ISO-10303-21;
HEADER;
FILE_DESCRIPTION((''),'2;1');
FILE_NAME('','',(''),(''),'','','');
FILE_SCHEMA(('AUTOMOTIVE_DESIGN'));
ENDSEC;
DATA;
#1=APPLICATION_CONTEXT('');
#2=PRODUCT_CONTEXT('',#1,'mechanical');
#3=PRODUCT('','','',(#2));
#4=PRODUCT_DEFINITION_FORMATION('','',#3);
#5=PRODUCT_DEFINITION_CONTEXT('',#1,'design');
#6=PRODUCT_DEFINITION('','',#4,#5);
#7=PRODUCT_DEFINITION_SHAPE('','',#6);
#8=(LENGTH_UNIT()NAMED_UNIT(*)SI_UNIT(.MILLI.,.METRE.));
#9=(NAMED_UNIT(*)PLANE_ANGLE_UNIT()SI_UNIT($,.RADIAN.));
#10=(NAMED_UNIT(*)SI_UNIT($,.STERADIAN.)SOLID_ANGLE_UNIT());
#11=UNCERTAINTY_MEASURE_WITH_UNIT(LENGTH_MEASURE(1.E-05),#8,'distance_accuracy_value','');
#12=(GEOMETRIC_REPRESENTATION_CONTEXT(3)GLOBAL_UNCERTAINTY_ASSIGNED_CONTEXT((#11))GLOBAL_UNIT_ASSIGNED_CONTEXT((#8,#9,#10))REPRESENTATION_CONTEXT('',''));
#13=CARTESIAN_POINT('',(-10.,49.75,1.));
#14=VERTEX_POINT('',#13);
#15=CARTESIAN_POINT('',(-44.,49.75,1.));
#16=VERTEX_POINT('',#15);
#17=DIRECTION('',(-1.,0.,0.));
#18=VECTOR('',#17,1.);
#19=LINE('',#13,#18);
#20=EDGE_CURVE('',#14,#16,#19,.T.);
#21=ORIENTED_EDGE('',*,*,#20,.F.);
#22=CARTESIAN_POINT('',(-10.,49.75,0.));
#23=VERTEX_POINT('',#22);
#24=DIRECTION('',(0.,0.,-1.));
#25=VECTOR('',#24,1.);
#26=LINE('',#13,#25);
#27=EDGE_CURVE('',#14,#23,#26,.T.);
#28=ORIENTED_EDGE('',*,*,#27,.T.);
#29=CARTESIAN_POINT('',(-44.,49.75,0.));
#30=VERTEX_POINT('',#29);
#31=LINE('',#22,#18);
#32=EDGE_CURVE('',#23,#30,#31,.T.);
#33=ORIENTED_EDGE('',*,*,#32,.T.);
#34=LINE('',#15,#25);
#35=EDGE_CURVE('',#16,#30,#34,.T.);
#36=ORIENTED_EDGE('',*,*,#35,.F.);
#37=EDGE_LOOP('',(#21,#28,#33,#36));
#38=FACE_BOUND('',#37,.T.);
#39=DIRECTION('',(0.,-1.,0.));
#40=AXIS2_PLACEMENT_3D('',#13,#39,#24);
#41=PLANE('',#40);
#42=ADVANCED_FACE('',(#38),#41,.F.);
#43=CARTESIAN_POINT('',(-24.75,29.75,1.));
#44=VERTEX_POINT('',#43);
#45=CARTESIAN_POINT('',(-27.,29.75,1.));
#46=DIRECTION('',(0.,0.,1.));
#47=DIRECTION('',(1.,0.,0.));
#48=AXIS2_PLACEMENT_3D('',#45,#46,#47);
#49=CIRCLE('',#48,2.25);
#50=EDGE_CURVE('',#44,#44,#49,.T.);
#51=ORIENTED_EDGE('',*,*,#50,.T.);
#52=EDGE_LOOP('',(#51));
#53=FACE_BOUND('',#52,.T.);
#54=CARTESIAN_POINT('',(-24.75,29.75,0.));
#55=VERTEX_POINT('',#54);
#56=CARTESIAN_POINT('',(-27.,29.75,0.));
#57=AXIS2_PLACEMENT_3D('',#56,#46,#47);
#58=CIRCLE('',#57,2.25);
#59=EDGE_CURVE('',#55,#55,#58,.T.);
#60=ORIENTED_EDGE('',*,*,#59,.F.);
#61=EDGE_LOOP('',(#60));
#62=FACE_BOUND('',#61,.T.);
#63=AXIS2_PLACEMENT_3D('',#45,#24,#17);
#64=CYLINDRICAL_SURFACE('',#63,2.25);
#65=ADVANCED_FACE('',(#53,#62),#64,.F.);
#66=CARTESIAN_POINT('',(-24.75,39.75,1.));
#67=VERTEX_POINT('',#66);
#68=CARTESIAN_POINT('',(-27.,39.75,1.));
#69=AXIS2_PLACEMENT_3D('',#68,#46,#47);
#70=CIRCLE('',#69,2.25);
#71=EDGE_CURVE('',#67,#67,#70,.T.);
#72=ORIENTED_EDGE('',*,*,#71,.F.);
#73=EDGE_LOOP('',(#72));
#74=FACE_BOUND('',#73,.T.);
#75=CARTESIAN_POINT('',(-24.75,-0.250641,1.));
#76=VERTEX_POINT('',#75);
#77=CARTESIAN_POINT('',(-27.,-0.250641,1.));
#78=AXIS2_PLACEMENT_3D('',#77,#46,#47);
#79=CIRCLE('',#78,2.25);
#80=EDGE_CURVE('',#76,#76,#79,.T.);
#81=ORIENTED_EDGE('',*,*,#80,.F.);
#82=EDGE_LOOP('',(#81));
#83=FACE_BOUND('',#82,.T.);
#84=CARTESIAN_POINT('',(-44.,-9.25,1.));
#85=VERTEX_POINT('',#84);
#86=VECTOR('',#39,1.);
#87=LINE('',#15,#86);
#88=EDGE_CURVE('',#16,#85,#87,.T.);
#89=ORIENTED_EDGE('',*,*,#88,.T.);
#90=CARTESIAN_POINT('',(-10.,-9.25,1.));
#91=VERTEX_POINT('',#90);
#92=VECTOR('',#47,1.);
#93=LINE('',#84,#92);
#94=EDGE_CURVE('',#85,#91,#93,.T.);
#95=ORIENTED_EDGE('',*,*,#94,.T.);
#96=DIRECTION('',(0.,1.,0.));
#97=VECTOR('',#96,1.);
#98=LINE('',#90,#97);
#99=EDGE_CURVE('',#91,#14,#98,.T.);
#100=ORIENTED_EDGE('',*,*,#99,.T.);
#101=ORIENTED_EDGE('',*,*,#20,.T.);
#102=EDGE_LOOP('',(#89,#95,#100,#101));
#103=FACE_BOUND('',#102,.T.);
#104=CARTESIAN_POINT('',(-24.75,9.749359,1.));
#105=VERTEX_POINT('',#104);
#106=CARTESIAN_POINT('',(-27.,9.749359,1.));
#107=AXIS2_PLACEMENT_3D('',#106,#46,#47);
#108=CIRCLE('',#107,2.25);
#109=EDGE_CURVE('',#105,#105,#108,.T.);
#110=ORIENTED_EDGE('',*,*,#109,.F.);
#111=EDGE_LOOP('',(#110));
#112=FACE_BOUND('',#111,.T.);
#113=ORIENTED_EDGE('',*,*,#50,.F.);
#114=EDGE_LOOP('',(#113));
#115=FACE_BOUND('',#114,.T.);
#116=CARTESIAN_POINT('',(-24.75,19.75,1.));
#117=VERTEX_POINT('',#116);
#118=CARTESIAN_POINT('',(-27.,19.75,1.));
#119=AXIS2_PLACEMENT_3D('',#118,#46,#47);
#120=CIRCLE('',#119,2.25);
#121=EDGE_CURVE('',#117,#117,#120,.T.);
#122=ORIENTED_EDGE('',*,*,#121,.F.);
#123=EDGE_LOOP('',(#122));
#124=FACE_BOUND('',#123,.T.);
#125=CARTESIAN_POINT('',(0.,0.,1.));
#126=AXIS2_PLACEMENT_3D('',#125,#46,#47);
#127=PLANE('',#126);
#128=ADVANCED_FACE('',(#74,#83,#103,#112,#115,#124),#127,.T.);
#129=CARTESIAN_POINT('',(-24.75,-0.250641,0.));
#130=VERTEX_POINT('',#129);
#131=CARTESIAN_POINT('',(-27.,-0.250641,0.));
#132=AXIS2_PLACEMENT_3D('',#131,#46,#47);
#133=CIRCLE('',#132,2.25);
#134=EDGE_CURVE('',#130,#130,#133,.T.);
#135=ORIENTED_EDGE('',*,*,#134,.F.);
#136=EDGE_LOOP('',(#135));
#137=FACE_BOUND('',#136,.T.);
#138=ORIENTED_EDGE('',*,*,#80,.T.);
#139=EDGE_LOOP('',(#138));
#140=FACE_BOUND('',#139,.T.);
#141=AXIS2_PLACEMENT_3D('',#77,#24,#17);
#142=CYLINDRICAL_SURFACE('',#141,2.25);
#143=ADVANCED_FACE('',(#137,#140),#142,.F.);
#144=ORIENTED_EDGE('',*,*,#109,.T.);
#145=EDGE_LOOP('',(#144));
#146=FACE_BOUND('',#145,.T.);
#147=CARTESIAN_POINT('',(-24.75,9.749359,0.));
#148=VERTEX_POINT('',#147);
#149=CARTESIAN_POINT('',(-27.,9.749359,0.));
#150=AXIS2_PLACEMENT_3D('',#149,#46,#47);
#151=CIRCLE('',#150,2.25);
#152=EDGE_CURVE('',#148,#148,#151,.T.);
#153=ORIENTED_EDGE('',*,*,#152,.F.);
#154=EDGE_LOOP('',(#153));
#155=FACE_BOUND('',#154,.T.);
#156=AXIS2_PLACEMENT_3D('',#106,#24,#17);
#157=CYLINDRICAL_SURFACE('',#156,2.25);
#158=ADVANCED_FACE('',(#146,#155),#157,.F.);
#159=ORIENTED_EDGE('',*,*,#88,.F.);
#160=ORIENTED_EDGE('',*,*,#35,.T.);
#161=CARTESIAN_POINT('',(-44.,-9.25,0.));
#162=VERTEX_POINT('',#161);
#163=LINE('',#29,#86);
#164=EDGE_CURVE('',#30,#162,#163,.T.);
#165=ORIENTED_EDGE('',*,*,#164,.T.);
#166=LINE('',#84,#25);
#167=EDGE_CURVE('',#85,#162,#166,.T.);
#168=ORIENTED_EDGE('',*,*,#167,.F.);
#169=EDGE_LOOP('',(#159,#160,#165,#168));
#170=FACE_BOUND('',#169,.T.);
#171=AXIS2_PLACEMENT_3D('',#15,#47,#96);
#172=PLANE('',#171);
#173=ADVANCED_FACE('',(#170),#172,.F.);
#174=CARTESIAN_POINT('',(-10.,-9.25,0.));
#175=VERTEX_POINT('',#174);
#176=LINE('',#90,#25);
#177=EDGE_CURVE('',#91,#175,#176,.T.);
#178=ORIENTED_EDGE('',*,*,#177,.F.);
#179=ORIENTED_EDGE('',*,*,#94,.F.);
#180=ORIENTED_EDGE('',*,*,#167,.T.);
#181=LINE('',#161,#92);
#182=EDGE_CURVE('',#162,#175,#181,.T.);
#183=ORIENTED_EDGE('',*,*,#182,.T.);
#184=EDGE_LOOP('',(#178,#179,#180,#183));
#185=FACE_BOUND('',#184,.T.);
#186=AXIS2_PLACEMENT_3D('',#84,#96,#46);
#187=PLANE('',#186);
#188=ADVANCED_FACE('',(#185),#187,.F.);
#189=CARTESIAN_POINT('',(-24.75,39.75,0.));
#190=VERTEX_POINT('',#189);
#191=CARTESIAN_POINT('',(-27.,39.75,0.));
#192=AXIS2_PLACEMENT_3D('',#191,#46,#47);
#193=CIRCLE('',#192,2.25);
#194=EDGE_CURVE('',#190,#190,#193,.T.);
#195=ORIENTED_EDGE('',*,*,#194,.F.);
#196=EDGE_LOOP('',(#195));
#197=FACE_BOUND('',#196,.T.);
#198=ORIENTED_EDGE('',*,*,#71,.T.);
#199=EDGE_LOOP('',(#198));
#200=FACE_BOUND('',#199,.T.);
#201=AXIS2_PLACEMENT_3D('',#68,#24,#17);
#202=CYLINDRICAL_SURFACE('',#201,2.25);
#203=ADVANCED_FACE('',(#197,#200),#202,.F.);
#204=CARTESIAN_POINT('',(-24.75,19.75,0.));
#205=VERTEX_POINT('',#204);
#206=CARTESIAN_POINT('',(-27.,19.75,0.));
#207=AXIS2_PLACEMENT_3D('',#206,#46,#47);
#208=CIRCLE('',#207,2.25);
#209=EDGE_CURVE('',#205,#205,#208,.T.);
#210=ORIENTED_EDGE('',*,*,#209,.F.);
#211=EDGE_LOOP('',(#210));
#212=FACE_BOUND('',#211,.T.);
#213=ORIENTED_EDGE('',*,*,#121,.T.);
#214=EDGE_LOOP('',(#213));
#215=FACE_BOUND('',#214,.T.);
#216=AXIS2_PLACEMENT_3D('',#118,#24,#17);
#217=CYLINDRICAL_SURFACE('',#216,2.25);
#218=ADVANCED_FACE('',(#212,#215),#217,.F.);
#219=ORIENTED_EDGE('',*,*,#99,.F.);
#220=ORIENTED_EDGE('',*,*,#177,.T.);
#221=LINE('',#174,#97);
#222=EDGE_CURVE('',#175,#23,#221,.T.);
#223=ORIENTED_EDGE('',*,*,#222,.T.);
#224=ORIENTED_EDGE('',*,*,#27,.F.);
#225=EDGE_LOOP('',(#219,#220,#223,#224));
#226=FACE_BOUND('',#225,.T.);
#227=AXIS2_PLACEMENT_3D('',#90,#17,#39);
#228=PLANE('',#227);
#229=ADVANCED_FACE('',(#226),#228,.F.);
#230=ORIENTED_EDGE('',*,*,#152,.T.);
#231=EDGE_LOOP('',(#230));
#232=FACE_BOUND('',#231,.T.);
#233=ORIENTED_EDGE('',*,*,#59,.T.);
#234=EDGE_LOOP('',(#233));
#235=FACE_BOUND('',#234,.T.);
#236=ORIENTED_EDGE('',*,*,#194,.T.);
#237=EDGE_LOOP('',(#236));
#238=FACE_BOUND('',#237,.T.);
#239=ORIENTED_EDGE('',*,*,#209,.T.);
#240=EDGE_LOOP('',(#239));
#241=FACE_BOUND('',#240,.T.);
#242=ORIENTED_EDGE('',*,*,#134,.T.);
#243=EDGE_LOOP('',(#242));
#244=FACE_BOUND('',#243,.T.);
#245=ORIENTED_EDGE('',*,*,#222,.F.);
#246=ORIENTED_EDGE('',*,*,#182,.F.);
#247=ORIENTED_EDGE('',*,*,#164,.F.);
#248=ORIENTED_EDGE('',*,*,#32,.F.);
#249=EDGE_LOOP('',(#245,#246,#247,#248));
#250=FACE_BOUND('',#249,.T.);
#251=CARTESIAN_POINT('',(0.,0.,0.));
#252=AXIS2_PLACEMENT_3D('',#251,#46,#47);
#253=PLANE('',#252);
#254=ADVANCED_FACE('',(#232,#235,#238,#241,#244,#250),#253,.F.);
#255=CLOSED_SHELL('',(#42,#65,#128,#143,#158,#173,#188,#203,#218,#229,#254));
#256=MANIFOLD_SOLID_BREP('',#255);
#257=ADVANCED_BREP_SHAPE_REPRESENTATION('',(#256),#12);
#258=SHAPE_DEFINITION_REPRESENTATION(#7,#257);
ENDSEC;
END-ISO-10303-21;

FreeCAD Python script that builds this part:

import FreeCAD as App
import Part
import Sketcher
from FreeCAD import Vector

doc = App.newDocument("Part")
body = doc.addObject("PartDesign::Body", "Body")

sketch1 = doc.addObject("Sketcher::SketchObject", "Sketch")
body.addObject(sketch1)
sketch1.AttachmentSupport = (doc.XY_Plane, [""])
sketch1.MapMode = "FlatFace"
sketch1.addGeometry([
    Part.LineSegment(Vector(-44, 49.8, 0), Vector(-44, -9.2, 0)),
    Part.LineSegment(Vector(-44, -9.2, 0), Vector(-10, -9.2, 0)),
    Part.LineSegment(Vector(-10, -9.2, 0), Vector(-10, 49.8, 0)),
    Part.LineSegment(Vector(-10, 49.8, 0), Vector(-44, 49.8, 0)),
    Part.Circle(Vector(-27, -0.3, 0), Vector(0, 0, 1), 2.2),
    Part.Circle(Vector(-27, 9.7, 0), Vector(0, 0, 1), 2.2),
    Part.Circle(Vector(-27, 19.8, 0), Vector(0, 0, 1), 2.2),
    Part.Circle(Vector(-27, 29.8, 0), Vector(0, 0, 1), 2.2),
    Part.Circle(Vector(-27, 39.8, 0), Vector(0, 0, 1), 2.2),
], False)
sketch1.addConstraint([
    Sketcher.Constraint("Coincident", 0, 2, 1, 1),
    Sketcher.Constraint("Coincident", 1, 2, 2, 1),
    Sketcher.Constraint("Coincident", 2, 2, 3, 1),
    Sketcher.Constraint("Coincident", 3, 2, 0, 1),
    Sketcher.Constraint("Vertical", 0),
    Sketcher.Constraint("Horizontal", 1),
    Sketcher.Constraint("Vertical", 2),
    Sketcher.Constraint("Horizontal", 3),
    Sketcher.Constraint("Equal", 4, 5),
    Sketcher.Constraint("Equal", 5, 6),
    Sketcher.Constraint("Equal", 6, 7),
    Sketcher.Constraint("Equal", 7, 8),
    Sketcher.Constraint("Vertical", 4, 3, 5, 3),
    Sketcher.Constraint("Vertical", 5, 3, 6, 3),
    Sketcher.Constraint("Vertical", 6, 3, 7, 3),
    Sketcher.Constraint("Vertical", 7, 3, 8, 3),
    Sketcher.Constraint("Diameter", 4, 4.5),
    Sketcher.Constraint("DistanceX", 1, 1, 1, 2, 34.0),
    Sketcher.Constraint("DistanceY", 0, 2, 0, 1, 59.0),
    Sketcher.Constraint("DistanceX", 4, 3, -1, 1, 27.0),
    Sketcher.Constraint("DistanceX", 0, 2, -1, 1, 44.0),
    Sketcher.Constraint("DistanceY", 4, 3, 5, 3, 10.0),
    Sketcher.Constraint("DistanceY", 6, 3, 7, 3, 10.0),
    Sketcher.Constraint("DistanceY", 7, 3, 8, 3, 10.0),
    Sketcher.Constraint("DistanceY", 0, 2, 6, 3, 29.0),
    Sketcher.Constraint("DistanceY", -1, 1, 6, 3, 19.75),
    Sketcher.Constraint("DistanceY", 4, 3, -1, 1, 0.250641),
])
pad1 = doc.addObject("PartDesign::Pad", "Pad")
body.addObject(pad1)
pad1.Profile = sketch1
pad1.Length = 1

doc.recompute()
